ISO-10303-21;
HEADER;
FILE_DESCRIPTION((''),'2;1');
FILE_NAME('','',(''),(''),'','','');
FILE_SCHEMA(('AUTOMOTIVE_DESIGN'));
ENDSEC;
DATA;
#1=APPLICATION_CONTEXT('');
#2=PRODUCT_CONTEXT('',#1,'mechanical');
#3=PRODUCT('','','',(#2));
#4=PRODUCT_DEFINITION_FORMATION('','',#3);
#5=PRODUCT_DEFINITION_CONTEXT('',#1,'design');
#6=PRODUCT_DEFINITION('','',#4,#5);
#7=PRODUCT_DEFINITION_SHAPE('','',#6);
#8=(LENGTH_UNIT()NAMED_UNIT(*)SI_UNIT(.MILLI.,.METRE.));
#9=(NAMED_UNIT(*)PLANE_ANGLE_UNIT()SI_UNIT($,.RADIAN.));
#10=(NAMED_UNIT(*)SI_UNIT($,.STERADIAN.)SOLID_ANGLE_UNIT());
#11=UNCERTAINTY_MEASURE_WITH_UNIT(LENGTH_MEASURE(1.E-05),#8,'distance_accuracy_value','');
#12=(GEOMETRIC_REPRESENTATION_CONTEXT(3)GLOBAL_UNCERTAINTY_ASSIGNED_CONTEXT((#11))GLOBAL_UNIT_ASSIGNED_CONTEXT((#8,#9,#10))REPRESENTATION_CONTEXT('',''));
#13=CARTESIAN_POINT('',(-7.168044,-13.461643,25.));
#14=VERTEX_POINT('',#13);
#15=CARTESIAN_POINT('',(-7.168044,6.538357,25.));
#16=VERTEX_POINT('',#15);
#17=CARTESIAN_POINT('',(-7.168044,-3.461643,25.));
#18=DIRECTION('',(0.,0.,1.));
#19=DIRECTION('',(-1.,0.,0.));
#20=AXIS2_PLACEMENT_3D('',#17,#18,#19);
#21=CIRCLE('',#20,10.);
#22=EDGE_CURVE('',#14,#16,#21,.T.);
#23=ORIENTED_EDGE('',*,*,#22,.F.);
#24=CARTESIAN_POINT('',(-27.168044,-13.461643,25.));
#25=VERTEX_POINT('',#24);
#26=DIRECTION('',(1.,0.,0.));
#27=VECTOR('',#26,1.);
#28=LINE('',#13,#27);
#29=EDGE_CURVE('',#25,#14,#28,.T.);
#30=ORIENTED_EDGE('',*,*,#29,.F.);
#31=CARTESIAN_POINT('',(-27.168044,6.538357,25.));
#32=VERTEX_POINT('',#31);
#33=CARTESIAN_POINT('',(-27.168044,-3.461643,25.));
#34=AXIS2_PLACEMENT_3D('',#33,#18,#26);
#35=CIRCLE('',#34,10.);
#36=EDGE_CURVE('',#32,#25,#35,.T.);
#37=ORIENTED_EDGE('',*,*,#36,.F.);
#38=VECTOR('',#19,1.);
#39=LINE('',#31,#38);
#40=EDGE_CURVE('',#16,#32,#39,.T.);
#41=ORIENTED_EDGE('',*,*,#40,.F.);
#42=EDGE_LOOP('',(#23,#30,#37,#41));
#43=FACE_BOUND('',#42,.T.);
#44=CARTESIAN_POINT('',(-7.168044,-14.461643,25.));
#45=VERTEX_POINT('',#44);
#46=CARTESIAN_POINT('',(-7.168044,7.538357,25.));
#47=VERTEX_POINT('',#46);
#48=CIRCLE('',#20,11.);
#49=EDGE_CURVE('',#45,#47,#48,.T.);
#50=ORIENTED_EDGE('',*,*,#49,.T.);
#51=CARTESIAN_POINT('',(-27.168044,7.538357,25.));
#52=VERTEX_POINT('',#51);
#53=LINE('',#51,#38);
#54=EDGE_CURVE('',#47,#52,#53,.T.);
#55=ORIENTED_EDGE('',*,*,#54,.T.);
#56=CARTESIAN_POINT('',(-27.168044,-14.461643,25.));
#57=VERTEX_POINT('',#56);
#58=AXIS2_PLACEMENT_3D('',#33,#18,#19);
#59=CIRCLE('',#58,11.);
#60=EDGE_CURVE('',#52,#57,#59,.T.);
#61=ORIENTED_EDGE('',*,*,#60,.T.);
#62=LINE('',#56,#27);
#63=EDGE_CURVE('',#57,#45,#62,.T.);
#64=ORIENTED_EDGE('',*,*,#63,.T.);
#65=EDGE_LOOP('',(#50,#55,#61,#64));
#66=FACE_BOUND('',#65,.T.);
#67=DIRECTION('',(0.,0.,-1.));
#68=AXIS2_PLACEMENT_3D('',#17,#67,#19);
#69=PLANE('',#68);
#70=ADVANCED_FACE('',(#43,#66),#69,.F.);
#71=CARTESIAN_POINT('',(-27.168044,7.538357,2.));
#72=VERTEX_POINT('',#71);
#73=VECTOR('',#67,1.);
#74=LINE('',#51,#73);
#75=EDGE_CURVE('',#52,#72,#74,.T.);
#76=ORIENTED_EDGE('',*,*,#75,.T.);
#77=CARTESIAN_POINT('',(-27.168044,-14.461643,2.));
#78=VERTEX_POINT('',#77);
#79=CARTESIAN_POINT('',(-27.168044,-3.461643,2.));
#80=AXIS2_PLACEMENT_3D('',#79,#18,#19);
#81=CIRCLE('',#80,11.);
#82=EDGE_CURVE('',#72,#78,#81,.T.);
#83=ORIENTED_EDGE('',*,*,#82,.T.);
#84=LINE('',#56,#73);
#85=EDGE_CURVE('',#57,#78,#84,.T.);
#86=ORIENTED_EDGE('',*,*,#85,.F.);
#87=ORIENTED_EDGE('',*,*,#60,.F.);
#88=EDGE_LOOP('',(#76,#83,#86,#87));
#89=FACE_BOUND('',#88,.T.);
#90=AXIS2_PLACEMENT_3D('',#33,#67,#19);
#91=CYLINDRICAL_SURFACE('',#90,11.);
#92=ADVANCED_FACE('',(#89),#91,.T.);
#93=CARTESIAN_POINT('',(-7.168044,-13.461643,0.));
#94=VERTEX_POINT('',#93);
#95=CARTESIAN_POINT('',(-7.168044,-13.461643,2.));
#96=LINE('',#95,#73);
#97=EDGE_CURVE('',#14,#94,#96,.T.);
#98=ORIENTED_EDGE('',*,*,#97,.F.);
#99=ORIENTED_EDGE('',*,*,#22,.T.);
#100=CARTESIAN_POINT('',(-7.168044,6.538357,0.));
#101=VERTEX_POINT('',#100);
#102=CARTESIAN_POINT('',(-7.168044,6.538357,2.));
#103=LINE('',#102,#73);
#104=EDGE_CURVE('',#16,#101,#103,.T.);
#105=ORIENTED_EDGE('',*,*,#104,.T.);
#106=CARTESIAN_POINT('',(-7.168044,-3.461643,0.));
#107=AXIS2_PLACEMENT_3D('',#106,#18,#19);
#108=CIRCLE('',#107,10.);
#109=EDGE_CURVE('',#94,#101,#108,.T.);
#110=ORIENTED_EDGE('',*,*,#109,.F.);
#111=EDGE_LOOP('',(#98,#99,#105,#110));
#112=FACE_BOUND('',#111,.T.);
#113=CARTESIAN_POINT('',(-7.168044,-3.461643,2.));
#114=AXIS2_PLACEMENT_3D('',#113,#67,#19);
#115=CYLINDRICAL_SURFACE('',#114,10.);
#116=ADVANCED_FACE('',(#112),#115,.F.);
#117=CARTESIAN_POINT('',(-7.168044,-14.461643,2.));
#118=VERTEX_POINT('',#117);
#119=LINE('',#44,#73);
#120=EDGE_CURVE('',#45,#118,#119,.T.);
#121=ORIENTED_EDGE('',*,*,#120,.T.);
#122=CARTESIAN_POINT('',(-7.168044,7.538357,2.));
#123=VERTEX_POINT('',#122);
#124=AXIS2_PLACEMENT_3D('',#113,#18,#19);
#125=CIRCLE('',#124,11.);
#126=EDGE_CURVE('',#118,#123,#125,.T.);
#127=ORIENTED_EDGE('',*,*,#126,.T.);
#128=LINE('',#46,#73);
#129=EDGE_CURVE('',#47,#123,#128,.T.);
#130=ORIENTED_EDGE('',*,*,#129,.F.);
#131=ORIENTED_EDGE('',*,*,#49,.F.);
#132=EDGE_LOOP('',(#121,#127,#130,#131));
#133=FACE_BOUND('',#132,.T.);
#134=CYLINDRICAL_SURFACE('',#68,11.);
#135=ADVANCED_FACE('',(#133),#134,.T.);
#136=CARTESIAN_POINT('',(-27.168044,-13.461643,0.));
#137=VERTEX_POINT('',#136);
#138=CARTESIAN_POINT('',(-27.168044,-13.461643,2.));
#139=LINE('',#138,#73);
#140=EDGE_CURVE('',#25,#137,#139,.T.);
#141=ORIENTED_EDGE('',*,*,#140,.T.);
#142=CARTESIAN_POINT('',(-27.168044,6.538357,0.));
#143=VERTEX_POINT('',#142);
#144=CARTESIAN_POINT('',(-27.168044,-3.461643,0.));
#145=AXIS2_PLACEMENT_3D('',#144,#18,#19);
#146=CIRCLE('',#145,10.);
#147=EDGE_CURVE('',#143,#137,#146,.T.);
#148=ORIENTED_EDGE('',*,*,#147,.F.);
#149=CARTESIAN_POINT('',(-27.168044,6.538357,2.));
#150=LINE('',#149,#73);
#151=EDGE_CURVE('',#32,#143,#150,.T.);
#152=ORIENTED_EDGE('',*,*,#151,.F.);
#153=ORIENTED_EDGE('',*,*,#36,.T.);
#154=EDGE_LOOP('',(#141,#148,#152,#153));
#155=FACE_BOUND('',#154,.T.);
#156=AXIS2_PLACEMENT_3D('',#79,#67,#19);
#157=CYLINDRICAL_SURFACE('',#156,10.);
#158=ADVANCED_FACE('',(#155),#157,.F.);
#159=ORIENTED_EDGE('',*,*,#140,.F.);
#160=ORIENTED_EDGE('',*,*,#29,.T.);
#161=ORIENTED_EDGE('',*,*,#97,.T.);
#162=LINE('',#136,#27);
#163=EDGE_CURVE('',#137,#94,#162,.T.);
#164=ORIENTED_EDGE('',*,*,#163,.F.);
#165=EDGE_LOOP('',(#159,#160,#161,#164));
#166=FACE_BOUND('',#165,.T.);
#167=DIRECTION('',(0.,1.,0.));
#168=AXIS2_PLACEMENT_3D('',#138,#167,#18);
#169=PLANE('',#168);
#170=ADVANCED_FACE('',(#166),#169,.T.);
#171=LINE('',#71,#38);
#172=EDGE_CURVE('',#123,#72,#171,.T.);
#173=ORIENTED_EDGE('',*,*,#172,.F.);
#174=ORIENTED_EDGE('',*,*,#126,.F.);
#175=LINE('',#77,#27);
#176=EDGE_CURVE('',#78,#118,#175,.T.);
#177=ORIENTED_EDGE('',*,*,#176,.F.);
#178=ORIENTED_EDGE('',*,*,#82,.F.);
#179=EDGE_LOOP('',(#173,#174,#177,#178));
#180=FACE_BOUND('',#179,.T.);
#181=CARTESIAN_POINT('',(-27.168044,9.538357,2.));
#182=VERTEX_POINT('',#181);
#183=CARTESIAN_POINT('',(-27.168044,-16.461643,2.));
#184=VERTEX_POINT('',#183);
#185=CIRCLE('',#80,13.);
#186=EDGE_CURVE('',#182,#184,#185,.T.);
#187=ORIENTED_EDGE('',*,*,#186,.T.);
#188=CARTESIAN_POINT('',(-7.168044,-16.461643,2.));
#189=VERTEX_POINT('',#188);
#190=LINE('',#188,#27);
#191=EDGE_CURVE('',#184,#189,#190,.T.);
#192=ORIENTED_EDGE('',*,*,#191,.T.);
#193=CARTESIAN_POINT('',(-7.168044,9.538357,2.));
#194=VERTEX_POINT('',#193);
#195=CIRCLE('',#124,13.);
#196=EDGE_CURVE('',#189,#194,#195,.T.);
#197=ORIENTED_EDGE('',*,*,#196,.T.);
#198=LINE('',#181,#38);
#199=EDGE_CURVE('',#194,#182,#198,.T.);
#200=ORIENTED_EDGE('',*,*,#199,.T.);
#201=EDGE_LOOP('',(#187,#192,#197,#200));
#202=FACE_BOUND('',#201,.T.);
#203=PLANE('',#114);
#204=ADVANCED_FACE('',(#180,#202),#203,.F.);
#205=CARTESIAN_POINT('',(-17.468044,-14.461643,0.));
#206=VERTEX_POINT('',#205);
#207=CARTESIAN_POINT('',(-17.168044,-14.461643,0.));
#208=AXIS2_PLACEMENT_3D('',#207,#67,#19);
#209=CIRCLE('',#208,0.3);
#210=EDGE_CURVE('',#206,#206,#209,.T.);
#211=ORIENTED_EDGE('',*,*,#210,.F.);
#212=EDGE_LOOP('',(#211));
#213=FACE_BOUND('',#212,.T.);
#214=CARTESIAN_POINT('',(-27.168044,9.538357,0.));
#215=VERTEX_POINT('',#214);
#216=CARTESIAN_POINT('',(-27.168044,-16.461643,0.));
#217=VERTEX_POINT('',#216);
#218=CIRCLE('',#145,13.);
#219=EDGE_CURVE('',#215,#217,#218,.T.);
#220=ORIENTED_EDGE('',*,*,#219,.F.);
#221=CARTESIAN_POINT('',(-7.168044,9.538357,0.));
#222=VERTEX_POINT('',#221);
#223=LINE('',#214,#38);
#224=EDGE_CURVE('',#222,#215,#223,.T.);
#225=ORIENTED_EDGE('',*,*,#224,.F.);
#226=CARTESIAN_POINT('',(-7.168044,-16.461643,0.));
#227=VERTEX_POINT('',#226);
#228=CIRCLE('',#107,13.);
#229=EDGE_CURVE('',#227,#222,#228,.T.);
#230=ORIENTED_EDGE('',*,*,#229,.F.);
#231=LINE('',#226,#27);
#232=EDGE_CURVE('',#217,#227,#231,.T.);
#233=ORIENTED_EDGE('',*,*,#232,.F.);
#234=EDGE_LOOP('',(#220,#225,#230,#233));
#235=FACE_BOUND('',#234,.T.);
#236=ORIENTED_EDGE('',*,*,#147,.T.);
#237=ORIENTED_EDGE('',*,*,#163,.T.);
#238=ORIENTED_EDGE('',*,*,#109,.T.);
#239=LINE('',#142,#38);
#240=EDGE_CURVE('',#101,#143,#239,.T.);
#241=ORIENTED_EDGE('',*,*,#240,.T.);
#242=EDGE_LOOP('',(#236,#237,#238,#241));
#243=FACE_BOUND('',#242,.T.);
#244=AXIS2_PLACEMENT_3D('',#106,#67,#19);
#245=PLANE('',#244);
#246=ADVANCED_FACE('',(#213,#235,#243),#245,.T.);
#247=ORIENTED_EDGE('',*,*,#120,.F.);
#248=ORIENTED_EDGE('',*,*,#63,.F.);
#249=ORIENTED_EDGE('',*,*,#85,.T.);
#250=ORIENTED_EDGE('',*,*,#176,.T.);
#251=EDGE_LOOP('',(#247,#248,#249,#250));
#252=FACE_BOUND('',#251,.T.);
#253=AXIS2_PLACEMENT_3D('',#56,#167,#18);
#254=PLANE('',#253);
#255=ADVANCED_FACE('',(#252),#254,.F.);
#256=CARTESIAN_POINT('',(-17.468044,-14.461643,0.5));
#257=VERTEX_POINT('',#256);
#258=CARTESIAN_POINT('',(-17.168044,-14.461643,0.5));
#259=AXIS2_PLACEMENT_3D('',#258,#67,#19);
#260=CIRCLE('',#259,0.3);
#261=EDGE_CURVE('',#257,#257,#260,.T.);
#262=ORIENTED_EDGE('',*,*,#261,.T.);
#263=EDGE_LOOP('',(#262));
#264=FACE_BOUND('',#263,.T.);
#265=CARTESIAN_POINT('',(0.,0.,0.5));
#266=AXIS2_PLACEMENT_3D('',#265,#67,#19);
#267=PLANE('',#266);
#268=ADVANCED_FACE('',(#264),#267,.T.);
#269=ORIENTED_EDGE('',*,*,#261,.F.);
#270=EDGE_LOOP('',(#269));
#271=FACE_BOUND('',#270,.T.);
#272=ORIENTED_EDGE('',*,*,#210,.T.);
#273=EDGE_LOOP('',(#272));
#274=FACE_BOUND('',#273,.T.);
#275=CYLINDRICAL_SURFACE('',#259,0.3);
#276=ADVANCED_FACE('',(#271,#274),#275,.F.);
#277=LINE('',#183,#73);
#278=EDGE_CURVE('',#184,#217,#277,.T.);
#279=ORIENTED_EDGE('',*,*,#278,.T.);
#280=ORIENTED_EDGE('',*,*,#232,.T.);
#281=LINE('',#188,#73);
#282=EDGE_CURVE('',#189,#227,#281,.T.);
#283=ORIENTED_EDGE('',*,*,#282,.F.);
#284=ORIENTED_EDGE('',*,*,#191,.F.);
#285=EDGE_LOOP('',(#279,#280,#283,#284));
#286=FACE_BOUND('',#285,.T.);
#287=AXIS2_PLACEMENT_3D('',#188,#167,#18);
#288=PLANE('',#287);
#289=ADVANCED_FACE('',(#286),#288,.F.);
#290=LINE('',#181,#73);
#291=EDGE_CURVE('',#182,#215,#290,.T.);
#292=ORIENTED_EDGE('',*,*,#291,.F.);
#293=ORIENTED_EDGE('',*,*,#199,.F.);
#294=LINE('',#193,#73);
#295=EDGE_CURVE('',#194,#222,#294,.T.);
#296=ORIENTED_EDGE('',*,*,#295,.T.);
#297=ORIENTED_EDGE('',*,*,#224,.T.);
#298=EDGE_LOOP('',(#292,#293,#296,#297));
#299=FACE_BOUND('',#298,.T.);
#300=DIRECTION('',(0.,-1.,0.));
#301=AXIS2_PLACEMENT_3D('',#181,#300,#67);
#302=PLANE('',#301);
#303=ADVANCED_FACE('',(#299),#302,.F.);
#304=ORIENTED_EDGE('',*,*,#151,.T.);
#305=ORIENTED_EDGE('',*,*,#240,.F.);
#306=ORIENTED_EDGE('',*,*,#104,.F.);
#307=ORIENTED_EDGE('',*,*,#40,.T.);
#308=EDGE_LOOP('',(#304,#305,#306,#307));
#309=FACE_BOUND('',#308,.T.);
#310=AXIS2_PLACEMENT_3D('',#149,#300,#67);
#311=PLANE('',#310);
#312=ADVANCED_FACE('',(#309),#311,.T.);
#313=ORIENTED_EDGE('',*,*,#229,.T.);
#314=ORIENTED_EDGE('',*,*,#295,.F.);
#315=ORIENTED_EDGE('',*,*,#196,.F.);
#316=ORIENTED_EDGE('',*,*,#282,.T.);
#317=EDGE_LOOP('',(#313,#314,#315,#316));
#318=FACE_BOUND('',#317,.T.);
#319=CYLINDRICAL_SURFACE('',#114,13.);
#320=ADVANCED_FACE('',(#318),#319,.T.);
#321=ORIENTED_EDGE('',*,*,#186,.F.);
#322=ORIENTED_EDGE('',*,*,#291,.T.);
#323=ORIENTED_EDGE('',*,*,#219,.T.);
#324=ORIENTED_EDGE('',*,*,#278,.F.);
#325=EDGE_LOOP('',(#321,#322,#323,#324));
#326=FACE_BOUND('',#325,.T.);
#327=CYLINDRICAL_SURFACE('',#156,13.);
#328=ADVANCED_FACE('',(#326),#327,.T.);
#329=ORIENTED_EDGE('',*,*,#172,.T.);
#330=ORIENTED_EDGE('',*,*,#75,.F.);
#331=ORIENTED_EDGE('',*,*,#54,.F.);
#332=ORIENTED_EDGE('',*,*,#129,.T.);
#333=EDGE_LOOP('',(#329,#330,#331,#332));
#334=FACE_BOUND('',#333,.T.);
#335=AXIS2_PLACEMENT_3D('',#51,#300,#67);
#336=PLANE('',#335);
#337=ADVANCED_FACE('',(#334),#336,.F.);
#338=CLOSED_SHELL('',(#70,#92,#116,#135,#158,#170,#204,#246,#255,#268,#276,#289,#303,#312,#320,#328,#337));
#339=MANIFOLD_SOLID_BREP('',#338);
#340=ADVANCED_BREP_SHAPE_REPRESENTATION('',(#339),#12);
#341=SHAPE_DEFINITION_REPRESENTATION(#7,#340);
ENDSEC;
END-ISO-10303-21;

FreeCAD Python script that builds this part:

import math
import FreeCAD as App
import Part
import Sketcher
Q = App.Units.Quantity

doc = App.newDocument("Part")
params = doc.addObject("Spreadsheet::Sheet", "Params")
for row, (alias, value) in enumerate([
    ("sketch1_radius", "13 mm"),
    ("sketch1_radius2", "10 mm"),
    ("sketch1_width", "20 mm"),
    ("pad1_length", "2 mm"),
    ("sketch2_radius", "11 mm"),
    ("sketch2_radius2", "10 mm"),
    ("sketch2_width", "20 mm"),
    ("pad2_length", "23 mm"),
    ("sketch3_diameter", "0.6 mm"),
    ("pocket1_length", "0.5 mm"),
], start=1):
    params.set(f"A{row}", alias)
    params.set(f"B{row}", "=" + value)
    params.setAlias(f"B{row}", alias)

body = doc.addObject("PartDesign::Body", "Body")

# Sketch on XY plane
sketch1 = doc.addObject("Sketcher::SketchObject", "Sketch")
body.addObject(sketch1)
sketch1.AttachmentSupport = (doc.XY_Plane, [""])
sketch1.MapMode = "FlatFace"
sketch1.addGeometry(Part.LineSegment(App.Vector(-27, -16, 0), App.Vector(-7, -16, 0)), False)
sketch1.addGeometry(Part.ArcOfCircle(Part.Circle(App.Vector(-7, -3, 0), App.Vector(0, 0, 1), 13), math.radians(-90), math.radians(90)), False)
sketch1.addGeometry(Part.LineSegment(App.Vector(-7, 10, 0), App.Vector(-27, 10, 0)), False)
sketch1.addGeometry(Part.ArcOfCircle(Part.Circle(App.Vector(-27, -3, 0), App.Vector(0, 0, 1), 13), math.radians(90), math.radians(270)), False)
sketch1.addGeometry(Part.ArcOfCircle(Part.Circle(App.Vector(-27, -3, 0), App.Vector(0, 0, 1), 10), math.radians(90), math.radians(270)), False)
sketch1.addGeometry(Part.LineSegment(App.Vector(-27, 7, 0), App.Vector(-7, 7, 0)), False)
sketch1.addGeometry(Part.ArcOfCircle(Part.Circle(App.Vector(-7, -3, 0), App.Vector(0, 0, 1), 10), math.radians(-90), math.radians(90)), False)
sketch1.addGeometry(Part.LineSegment(App.Vector(-7, -13, 0), App.Vector(-27, -13, 0)), False)
sketch1.addConstraint(Sketcher.Constraint("Tangent", 0, 2, 1, 1))
sketch1.addConstraint(Sketcher.Constraint("Tangent", 1, 2, 2, 1))
sketch1.addConstraint(Sketcher.Constraint("Tangent", 2, 2, 3, 1))
sketch1.addConstraint(Sketcher.Constraint("Tangent", 3, 2, 0, 1))
sketch1.addConstraint(Sketcher.Constraint("Tangent", 4, 1, 5, 1))
sketch1.addConstraint(Sketcher.Constraint("Tangent", 5, 2, 6, 2))
sketch1.addConstraint(Sketcher.Constraint("Tangent", 6, 1, 7, 1))
sketch1.addConstraint(Sketcher.Constraint("Tangent", 7, 2, 4, 2))
sketch1.addConstraint(Sketcher.Constraint("Horizontal", 0))
sketch1.addConstraint(Sketcher.Constraint("Horizontal", 2))
sketch1.addConstraint(Sketcher.Constraint("Horizontal", 5))
sketch1.addConstraint(Sketcher.Constraint("Horizontal", 7))
sketch1.addConstraint(Sketcher.Constraint("Coincident", 4, 3, 3, 3))
sketch1.addConstraint(Sketcher.Constraint("Vertical", 6, 3, 0, 2))
sketch1.addConstraint(Sketcher.Constraint("Radius", 1, Q("13 mm")))
sketch1.addConstraint(Sketcher.Constraint("Radius", 4, Q("10 mm")))
sketch1.addConstraint(Sketcher.Constraint("DistanceX", 0, 1, 0, 2, Q("20 mm")))
sketch1.addConstraint(Sketcher.Constraint("DistanceX", 1, 3, -1, 1, Q("7.168044 mm")))
sketch1.addConstraint(Sketcher.Constraint("DistanceY", 1, 3, -1, 1, Q("3.461643 mm")))
sketch1.setExpression("Constraints[14]", "Params.sketch1_radius")
sketch1.setExpression("Constraints[15]", "Params.sketch1_radius2")
sketch1.setExpression("Constraints[16]", "Params.sketch1_width")
pad1 = doc.addObject("PartDesign::Pad", "Pad")
body.addObject(pad1)
pad1.Profile = sketch1
pad1.setExpression("Length", "Params.pad1_length")

# Sketch on XY plane
sketch2 = doc.addObject("Sketcher::SketchObject", "Sketch001")
body.addObject(sketch2)
sketch2.AttachmentSupport = (doc.XY_Plane, [""])
sketch2.MapMode = "FlatFace"
sketch2.AttachmentOffset = App.Placement(App.Vector(0, 0, 2), App.Rotation())
sketch2.addGeometry(Part.LineSegment(App.Vector(-7, 8, 0), App.Vector(-27, 8, 0)), False)
sketch2.addGeometry(Part.ArcOfCircle(Part.Circle(App.Vector(-27, -3, 0), App.Vector(0, 0, 1), 11), math.radians(90), math.radians(270)), False)
sketch2.addGeometry(Part.LineSegment(App.Vector(-27, -14, 0), App.Vector(-7, -14, 0)), False)
sketch2.addGeometry(Part.ArcOfCircle(Part.Circle(App.Vector(-7, -3, 0), App.Vector(0, 0, 1), 11), math.radians(-90), math.radians(90)), False)
sketch2.addGeometry(Part.LineSegment(App.Vector(-27, 7, 0), App.Vector(-7, 7, 0)), False)
sketch2.addGeometry(Part.ArcOfCircle(Part.Circle(App.Vector(-7, -3, 0), App.Vector(0, 0, 1), 10), math.radians(-90), math.radians(90)), False)
sketch2.addGeometry(Part.LineSegment(App.Vector(-7, -13, 0), App.Vector(-27, -13, 0)), False)
sketch2.addGeometry(Part.ArcOfCircle(Part.Circle(App.Vector(-27, -3, 0), App.Vector(0, 0, 1), 10), math.radians(90), math.radians(270)), False)
sketch2.addConstraint(Sketcher.Constraint("Tangent", 0, 2, 1, 1))
sketch2.addConstraint(Sketcher.Constraint("Tangent", 1, 2, 2, 1))
sketch2.addConstraint(Sketcher.Constraint("Tangent", 2, 2, 3, 1))
sketch2.addConstraint(Sketcher.Constraint("Tangent", 3, 2, 0, 1))
sketch2.addConstraint(Sketcher.Constraint("Tangent", 4, 2, 5, 2))
sketch2.addConstraint(Sketcher.Constraint("Tangent", 5, 1, 6, 1))
sketch2.addConstraint(Sketcher.Constraint("Tangent", 6, 2, 7, 2))
sketch2.addConstraint(Sketcher.Constraint("Tangent", 7, 1, 4, 1))
sketch2.addConstraint(Sketcher.Constraint("Horizontal", 0))
sketch2.addConstraint(Sketcher.Constraint("Horizontal", 2))
sketch2.addConstraint(Sketcher.Constraint("Horizontal", 4))
sketch2.addConstraint(Sketcher.Constraint("Horizontal", 6))
sketch2.addConstraint(Sketcher.Constraint("Coincident", 5, 3, 3, 3))
sketch2.addConstraint(Sketcher.Constraint("Vertical", 7, 3, 0, 2))
sketch2.addConstraint(Sketcher.Constraint("Radius", 1, Q("11 mm")))
sketch2.addConstraint(Sketcher.Constraint("Radius", 5, Q("10 mm")))
sketch2.addConstraint(Sketcher.Constraint("DistanceX", 0, 2, 0, 1, Q("20 mm")))
sketch2.addConstraint(Sketcher.Constraint("DistanceX", 1, 3, -1, 1, Q("27.168044 mm")))
sketch2.addConstraint(Sketcher.Constraint("DistanceY", 1, 3, -1, 1, Q("3.461643 mm")))
sketch2.setExpression("Constraints[14]", "Params.sketch2_radius")
sketch2.setExpression("Constraints[15]", "Params.sketch2_radius2")
sketch2.setExpression("Constraints[16]", "Params.sketch2_width")
pad2 = doc.addObject("PartDesign::Pad", "Pad001")
body.addObject(pad2)
pad2.Profile = sketch2
pad2.setExpression("Length", "Params.pad2_length")

# Sketch on XY plane
sketch3 = doc.addObject("Sketcher::SketchObject", "Sketch002")
body.addObject(sketch3)
sketch3.AttachmentSupport = (doc.XY_Plane, [""])
sketch3.MapMode = "FlatFace"
sketch3.addGeometry(Part.Circle(App.Vector(-17.17, -14.46, 0), App.Vector(0, 0, 1), 0.3), False)
sketch3.addConstraint(Sketcher.Constraint("Diameter", 0, Q("0.6 mm")))
sketch3.addConstraint(Sketcher.Constraint("DistanceX", 0, 3, -1, 1, Q("17.168044 mm")))
sketch3.addConstraint(Sketcher.Constraint("DistanceY", 0, 3, -1, 1, Q("14.461643 mm")))
sketch3.setExpression("Constraints[0]", "Params.sketch3_diameter")
pocket1 = doc.addObject("PartDesign::Pocket", "Pocket")
body.addObject(pocket1)
pocket1.Profile = sketch3
pocket1.setExpression("Length", "Params.pocket1_length")
pocket1.Reversed = True

doc.recompute()
